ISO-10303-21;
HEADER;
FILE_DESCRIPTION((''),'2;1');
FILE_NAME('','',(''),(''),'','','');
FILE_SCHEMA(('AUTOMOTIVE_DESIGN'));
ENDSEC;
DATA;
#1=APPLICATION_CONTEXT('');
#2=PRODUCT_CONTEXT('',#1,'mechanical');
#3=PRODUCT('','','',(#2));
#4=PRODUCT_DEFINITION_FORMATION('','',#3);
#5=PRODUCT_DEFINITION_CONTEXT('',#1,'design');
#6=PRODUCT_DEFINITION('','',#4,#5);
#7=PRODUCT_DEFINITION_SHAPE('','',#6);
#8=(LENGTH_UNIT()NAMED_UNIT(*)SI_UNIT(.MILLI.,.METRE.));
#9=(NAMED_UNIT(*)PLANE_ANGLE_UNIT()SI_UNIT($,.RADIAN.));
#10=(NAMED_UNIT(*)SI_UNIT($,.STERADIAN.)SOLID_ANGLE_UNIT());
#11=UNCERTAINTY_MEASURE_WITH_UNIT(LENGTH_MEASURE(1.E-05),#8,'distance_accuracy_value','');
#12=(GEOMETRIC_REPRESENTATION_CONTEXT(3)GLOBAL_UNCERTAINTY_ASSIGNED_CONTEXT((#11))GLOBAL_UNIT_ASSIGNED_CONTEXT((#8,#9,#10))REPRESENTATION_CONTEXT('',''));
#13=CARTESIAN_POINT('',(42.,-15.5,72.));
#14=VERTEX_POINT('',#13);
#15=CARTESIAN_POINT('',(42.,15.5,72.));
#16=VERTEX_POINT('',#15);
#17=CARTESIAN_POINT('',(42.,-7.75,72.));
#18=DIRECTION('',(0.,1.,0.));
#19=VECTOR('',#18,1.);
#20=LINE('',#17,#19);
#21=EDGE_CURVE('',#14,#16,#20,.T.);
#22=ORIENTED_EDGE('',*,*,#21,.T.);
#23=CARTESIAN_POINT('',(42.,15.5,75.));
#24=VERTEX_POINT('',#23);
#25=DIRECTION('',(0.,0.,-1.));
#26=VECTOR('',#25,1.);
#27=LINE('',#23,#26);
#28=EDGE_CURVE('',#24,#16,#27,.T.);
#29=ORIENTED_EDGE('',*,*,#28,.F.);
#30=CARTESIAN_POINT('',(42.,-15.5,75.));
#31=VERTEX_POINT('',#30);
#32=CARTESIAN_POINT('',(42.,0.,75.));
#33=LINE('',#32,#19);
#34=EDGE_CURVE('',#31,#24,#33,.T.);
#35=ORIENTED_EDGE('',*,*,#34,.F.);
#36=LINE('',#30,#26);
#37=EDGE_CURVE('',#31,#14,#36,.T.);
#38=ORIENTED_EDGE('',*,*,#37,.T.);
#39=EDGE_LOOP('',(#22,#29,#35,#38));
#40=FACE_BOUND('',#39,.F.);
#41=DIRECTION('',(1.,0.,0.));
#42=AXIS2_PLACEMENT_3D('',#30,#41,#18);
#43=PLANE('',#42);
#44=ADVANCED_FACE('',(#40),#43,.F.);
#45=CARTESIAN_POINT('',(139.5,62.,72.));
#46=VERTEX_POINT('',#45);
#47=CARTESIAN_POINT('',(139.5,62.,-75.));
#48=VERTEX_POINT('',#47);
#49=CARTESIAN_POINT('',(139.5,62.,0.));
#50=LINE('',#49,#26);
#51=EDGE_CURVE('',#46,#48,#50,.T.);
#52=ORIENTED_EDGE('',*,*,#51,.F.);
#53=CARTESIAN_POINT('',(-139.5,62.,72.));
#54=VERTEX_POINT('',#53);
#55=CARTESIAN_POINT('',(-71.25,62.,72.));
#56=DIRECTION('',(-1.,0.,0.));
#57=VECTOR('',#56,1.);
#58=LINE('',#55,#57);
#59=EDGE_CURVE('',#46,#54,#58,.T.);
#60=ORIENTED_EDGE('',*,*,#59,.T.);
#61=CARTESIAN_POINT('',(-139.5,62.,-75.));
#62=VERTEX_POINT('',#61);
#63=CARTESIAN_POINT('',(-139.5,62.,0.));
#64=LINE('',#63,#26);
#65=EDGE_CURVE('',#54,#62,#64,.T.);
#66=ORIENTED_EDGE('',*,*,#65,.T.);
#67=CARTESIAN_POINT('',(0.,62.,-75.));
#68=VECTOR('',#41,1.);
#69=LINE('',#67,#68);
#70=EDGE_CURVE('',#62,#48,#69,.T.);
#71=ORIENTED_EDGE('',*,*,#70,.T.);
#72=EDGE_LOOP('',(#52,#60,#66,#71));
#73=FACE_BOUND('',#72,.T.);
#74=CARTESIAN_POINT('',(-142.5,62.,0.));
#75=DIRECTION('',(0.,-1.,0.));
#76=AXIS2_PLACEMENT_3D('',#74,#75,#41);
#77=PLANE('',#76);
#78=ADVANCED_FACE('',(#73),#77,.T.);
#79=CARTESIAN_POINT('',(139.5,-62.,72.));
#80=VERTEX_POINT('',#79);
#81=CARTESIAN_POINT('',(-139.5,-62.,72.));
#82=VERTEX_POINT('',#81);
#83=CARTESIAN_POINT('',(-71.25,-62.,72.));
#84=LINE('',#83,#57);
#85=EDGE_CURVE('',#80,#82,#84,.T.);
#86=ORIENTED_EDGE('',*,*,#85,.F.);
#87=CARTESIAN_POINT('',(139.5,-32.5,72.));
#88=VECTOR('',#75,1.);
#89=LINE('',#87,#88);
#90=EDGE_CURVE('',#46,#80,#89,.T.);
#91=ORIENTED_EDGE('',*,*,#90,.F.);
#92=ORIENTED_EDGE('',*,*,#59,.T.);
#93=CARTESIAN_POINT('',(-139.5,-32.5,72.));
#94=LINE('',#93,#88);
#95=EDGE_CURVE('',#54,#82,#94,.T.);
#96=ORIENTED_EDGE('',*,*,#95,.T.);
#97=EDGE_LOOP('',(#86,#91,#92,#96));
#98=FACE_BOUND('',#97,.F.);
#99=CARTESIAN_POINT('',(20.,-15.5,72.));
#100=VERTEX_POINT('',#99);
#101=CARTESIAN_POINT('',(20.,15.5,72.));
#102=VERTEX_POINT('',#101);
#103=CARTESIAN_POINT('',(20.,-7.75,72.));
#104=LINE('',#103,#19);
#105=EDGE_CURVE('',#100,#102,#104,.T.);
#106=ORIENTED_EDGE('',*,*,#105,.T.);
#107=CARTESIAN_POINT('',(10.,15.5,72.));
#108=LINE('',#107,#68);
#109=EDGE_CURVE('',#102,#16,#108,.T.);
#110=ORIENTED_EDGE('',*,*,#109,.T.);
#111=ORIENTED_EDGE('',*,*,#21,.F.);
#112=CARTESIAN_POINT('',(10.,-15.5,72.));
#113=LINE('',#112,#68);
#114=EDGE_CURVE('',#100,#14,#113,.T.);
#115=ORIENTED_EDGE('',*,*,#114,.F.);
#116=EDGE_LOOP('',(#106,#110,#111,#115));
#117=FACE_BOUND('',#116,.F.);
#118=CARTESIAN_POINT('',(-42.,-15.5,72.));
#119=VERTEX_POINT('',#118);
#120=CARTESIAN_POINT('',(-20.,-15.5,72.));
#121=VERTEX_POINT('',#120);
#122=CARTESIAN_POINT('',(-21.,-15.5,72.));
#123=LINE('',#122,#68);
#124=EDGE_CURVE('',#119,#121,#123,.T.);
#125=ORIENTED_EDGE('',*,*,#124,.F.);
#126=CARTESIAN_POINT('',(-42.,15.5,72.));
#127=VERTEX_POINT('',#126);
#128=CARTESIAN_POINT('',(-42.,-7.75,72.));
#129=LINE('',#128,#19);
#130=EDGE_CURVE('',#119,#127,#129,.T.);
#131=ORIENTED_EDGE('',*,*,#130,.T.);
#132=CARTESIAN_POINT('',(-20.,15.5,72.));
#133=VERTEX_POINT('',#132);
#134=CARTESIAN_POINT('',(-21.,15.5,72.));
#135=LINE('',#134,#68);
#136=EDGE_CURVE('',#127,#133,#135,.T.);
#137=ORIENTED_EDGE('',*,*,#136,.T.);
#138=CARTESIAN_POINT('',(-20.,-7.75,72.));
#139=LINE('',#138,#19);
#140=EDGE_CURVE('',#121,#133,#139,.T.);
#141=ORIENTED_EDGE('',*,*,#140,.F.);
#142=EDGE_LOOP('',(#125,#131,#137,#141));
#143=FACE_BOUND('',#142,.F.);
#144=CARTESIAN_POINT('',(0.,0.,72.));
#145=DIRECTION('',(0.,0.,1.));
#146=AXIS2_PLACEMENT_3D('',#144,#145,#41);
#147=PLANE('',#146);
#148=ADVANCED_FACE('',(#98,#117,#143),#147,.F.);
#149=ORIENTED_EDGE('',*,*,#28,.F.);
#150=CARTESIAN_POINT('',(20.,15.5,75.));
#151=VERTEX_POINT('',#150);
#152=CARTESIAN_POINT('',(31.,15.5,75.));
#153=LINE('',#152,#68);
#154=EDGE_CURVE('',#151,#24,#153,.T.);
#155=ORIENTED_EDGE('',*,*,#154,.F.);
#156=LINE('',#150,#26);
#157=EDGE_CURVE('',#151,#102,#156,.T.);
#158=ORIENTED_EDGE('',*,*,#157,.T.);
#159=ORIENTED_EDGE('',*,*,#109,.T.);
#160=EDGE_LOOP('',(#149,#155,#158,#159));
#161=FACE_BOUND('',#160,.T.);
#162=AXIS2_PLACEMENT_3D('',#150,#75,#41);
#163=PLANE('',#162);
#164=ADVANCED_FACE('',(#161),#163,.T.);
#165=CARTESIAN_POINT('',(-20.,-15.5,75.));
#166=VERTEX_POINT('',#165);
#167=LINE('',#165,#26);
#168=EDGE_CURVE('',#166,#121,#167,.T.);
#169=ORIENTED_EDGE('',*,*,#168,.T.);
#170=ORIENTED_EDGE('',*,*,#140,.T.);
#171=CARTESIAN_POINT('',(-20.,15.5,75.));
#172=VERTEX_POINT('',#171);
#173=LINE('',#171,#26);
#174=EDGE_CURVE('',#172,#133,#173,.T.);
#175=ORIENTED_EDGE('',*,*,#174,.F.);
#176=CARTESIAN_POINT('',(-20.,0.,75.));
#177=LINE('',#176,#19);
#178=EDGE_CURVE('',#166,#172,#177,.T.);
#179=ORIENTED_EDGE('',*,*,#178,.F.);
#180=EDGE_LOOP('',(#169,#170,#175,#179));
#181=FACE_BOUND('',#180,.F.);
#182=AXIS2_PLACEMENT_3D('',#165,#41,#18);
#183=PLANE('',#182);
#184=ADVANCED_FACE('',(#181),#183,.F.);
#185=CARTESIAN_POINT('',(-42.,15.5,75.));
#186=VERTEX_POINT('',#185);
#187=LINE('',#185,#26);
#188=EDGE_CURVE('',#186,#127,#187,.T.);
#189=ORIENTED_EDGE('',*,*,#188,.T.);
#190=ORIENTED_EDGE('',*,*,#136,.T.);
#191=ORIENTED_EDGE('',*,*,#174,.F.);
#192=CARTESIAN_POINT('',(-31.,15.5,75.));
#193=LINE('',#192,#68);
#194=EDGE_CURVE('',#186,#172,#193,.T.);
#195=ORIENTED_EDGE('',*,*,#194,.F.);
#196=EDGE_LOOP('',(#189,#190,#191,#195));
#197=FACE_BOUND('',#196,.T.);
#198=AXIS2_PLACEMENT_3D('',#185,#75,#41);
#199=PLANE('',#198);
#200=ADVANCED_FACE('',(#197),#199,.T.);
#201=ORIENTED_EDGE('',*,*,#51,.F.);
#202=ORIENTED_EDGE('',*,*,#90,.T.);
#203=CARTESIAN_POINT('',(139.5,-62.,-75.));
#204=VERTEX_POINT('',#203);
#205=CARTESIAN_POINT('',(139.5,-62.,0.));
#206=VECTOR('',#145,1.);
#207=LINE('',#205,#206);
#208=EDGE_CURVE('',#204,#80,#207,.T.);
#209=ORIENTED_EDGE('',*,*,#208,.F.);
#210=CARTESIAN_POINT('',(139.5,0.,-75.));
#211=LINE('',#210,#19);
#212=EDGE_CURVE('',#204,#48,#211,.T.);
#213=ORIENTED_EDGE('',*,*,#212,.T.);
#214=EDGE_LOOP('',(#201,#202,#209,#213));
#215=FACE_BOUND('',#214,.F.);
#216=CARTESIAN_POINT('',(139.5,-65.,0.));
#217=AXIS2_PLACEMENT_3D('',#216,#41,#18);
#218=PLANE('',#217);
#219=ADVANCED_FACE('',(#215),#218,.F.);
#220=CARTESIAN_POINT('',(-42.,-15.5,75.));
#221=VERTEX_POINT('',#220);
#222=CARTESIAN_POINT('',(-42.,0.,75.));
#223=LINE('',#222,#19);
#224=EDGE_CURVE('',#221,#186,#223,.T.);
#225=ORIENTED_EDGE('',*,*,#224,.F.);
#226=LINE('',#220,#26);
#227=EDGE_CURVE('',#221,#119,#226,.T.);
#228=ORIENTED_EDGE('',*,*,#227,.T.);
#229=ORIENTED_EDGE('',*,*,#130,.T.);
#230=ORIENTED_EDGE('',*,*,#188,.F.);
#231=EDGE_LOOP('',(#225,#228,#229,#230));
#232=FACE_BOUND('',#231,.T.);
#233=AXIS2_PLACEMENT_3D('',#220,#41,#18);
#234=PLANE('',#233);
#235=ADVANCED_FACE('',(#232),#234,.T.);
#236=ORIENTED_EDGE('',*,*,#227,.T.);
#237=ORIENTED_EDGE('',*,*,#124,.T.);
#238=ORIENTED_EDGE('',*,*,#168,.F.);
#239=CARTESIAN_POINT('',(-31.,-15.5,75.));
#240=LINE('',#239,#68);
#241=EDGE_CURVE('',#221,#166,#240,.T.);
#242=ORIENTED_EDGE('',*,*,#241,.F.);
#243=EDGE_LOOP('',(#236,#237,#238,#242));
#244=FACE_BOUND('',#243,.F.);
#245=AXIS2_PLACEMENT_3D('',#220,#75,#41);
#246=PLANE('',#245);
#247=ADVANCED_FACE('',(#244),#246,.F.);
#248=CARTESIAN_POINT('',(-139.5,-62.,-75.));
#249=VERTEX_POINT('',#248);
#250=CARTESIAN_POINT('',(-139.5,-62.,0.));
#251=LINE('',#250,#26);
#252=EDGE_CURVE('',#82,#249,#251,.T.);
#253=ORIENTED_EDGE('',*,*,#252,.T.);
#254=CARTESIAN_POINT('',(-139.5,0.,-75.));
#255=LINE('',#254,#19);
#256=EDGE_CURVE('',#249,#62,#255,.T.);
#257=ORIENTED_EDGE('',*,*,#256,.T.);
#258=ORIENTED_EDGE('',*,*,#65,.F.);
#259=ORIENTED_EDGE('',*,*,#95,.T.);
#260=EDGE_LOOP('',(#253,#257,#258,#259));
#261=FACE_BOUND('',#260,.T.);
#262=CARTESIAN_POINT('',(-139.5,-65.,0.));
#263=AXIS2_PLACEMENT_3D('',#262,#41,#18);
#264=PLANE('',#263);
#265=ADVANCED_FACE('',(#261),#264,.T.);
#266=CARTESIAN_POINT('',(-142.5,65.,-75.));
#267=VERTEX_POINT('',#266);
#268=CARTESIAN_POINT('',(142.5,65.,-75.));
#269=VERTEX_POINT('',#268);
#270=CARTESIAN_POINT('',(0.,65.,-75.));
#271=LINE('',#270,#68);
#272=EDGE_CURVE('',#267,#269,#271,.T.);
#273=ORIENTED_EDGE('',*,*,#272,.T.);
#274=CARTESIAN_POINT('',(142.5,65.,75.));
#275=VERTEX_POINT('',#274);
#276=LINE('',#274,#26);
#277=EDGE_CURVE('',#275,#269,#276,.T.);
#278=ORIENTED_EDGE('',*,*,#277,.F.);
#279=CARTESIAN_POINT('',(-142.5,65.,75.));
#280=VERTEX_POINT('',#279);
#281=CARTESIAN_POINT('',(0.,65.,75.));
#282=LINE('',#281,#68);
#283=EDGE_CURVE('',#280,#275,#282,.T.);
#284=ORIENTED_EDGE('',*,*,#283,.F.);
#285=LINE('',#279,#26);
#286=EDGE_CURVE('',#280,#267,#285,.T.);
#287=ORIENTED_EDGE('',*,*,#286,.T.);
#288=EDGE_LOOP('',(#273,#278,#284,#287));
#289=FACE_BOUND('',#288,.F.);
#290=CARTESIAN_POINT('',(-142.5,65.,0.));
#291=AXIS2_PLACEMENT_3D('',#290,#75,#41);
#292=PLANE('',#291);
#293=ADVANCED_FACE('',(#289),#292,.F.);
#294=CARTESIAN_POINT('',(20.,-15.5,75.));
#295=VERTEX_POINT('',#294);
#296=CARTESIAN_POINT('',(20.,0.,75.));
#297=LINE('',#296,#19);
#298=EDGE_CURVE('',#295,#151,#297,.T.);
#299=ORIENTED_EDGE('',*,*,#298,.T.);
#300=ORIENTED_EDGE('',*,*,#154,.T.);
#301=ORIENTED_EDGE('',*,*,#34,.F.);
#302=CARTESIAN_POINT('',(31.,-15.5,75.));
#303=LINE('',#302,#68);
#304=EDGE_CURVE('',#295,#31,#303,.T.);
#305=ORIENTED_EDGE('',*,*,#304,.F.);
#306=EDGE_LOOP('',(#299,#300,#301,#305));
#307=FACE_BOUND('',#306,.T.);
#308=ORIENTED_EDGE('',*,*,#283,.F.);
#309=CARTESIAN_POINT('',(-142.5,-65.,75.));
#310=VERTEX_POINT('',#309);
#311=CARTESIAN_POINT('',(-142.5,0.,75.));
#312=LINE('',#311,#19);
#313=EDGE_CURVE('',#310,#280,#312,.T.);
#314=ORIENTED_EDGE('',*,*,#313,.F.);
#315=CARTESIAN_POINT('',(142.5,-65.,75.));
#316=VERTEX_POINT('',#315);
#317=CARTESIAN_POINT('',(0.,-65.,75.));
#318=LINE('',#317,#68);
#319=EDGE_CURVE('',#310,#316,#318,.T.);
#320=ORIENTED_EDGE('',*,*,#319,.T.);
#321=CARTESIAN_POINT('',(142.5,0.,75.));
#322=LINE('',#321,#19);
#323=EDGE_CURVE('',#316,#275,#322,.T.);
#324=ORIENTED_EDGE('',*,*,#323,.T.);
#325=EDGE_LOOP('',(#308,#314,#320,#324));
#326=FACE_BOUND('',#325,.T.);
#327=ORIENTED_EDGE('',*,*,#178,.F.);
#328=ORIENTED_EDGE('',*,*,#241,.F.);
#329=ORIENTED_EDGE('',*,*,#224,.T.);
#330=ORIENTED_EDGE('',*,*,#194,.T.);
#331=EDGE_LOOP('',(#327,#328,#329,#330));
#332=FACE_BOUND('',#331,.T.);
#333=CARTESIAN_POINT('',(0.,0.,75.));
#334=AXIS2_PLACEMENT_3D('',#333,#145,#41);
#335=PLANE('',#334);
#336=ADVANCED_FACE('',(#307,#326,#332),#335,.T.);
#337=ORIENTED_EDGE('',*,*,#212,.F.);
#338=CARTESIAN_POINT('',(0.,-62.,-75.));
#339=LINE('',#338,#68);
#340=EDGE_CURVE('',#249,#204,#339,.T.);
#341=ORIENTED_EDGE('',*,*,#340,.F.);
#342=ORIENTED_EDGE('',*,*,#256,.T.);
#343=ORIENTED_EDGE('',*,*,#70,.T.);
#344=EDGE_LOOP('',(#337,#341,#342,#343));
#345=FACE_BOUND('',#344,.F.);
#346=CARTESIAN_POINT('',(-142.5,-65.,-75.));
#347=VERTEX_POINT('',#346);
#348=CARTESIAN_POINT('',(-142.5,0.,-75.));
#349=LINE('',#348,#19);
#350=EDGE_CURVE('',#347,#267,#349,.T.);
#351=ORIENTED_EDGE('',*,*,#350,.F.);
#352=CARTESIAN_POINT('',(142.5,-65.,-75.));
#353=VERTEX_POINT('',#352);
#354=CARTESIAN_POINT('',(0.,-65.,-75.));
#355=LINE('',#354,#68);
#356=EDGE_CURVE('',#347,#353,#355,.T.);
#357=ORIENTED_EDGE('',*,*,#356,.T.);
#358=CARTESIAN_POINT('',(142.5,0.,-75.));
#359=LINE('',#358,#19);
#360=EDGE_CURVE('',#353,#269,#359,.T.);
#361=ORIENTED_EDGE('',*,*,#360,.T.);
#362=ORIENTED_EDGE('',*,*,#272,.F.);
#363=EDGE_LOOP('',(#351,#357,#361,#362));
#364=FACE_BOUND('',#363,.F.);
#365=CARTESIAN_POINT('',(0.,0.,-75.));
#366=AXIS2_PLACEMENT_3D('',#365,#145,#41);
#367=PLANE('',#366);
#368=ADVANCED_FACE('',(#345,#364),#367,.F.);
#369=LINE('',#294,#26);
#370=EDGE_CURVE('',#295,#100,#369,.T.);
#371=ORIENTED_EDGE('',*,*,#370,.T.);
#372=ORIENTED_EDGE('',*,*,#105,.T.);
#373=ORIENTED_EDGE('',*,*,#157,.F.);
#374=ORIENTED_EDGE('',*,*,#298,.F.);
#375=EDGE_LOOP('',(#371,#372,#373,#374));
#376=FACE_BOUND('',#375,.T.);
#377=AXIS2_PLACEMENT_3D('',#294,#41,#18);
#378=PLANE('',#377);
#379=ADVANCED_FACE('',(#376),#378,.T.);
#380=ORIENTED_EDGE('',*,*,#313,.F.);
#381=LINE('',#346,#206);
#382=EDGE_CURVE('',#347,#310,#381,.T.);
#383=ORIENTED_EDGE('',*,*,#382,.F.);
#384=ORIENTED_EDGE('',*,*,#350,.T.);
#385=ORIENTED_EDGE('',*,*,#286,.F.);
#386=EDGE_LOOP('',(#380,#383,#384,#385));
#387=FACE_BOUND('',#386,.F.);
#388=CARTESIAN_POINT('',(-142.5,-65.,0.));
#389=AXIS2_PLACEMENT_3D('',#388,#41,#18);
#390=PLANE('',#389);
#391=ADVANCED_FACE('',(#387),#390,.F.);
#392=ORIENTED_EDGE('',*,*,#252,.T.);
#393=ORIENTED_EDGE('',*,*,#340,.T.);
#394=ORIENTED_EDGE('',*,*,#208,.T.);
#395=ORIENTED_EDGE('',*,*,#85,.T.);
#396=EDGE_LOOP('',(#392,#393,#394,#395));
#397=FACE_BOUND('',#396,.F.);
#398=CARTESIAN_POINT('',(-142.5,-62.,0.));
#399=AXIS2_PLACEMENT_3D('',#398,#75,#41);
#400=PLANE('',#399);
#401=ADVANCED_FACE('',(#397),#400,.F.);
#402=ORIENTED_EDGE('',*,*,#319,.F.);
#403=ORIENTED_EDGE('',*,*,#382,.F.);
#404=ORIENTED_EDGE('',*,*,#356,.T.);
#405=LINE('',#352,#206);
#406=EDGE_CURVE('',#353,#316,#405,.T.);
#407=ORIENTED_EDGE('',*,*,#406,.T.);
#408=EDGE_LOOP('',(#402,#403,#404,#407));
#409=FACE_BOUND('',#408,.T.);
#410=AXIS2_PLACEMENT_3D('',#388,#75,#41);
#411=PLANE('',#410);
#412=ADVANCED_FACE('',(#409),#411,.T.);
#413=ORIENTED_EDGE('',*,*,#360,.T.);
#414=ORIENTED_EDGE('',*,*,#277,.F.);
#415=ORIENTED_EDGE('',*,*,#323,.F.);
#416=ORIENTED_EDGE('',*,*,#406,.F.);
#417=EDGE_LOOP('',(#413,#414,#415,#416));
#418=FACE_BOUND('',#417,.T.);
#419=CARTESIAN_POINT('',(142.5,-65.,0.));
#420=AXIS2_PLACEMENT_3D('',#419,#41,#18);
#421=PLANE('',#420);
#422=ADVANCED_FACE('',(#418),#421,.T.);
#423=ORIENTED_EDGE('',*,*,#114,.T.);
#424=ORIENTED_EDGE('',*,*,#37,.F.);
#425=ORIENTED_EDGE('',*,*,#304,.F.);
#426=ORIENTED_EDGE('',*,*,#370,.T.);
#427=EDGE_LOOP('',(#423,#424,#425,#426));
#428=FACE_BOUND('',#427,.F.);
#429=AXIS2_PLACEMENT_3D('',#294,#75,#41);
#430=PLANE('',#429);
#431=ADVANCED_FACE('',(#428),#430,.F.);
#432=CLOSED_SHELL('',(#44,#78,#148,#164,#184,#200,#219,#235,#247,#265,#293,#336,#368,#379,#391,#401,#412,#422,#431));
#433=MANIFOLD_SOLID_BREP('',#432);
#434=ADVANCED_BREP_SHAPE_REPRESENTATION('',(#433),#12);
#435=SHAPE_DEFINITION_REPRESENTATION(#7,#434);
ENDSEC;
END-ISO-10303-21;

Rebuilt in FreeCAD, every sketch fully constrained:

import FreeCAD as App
import Part
import Sketcher
Q = App.Units.Quantity


def faces_at(feature, points):
    """Names of the faces that lie closest to the given points."""
    faces = feature.Shape.Faces
    near = lambda p: min(range(len(faces)), key=lambda i: faces[i].distToShape(Part.Vertex(*p))[0])
    return sorted({f"Face{near(p) + 1}" for p in points})


def add_polygon(sketch, points):
    """Adds a closed chain of lines whose ends are joined by coincident constraints."""
    first, n = sketch.GeometryCount, len(points)
    for a, b in zip(points, points[1:] + points[:1]):
        sketch.addGeometry(Part.LineSegment(App.Vector(*a, 0), App.Vector(*b, 0)), False)
    for i in range(n):
        sketch.addConstraint(Sketcher.Constraint("Coincident", first + i, 2, first + (i + 1) % n, 1))

doc = App.newDocument("Part")
body = doc.addObject("PartDesign::Body", "Body")

sketch1 = body.newObject("Sketcher::SketchObject", "Sketch")
sketch1.AttachmentSupport = (doc.getObject("XY_Plane"), [""])
sketch1.MapMode = "FlatFace"
add_polygon(sketch1, [(-142, 65), (-142, -65), (142, -65), (142, 65)])
sketch1.addConstraint([
    Sketcher.Constraint("Vertical", 0),
    Sketcher.Constraint("Horizontal", 1),
    Sketcher.Constraint("Vertical", 2),
    Sketcher.Constraint("Horizontal", 3),
    Sketcher.Constraint("Symmetric", 0, 2, 2, 2, -1, 1),
    Sketcher.Constraint("DistanceX", 1, 1, 1, 2, Q("285 mm")),
    Sketcher.Constraint("DistanceY", 0, 2, 0, 1, Q("130 mm")),
])
pad1 = body.newObject("PartDesign::Pad", "Pad")
pad1.Profile = sketch1
pad1.Length = 150
pad1.Midplane = True
doc.recompute()

thickness = body.newObject("PartDesign::Thickness", "Thickness")
thickness.Base = (pad1, faces_at(pad1, [(0, 0, -75)]))
thickness.Value = 3
thickness.Reversed = True
thickness.Join = "Arc"

sketch2 = body.newObject("Sketcher::SketchObject", "Sketch001")
sketch2.AttachmentSupport = (doc.getObject("XY_Plane"), [""])
sketch2.MapMode = "FlatFace"
sketch2.AttachmentOffset = App.Placement(App.Vector(0, 0, 75), App.Rotation())
add_polygon(sketch2, [(20, 16), (20, -16), (42, -16), (42, 16)])
add_polygon(sketch2, [(-42, 16), (-42, -16), (-20, -16), (-20, 16)])
sketch2.addConstraint([
    Sketcher.Constraint("Vertical", 0),
    Sketcher.Constraint("Horizontal", 1),
    Sketcher.Constraint("Vertical", 2),
    Sketcher.Constraint("Horizontal", 3),
    Sketcher.Constraint("Vertical", 4),
    Sketcher.Constraint("Horizontal", 5),
    Sketcher.Constraint("Vertical", 6),
    Sketcher.Constraint("Horizontal", 7),
    Sketcher.Constraint("Symmetric", 2, 2, 4, 2, -1, 1),
    Sketcher.Constraint("Symmetric", 0, 2, 6, 2, -1, 1),
    Sketcher.Constraint("Horizontal", 1, 2, 4, 2),
    Sketcher.Constraint("DistanceX", 1, 1, 1, 2, Q("22 mm")),
    Sketcher.Constraint("DistanceY", 0, 2, 0, 1, Q("31 mm")),
    Sketcher.Constraint("DistanceX", -1, 1, 0, 2, Q("20 mm")),
])
pocket1 = body.newObject("PartDesign::Pocket", "Pocket")
pocket1.Profile = sketch2
pocket1.Length = 5

doc.recompute()
